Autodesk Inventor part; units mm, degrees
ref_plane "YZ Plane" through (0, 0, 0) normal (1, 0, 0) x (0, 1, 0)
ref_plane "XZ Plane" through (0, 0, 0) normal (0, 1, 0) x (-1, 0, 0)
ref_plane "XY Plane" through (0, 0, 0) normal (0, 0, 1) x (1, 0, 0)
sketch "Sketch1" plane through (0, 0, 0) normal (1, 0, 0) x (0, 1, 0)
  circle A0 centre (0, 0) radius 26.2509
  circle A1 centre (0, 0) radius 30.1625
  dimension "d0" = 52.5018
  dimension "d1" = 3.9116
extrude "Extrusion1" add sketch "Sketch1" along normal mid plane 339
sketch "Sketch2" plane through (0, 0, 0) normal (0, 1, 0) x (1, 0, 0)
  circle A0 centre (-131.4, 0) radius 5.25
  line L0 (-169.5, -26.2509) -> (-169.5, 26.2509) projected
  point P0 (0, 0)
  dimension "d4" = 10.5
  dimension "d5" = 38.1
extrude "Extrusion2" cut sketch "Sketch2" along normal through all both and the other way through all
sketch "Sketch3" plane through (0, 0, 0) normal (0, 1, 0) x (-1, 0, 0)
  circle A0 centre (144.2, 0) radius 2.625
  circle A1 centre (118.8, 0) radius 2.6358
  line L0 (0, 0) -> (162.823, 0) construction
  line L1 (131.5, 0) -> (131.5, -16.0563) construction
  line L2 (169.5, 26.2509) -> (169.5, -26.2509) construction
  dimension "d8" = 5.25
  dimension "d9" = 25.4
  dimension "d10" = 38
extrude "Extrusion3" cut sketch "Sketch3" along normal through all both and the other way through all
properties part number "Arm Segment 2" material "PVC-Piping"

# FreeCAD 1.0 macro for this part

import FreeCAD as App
import Part
import Sketcher

V = App.Vector

doc = App.newDocument("Part")
params = doc.addObject("Spreadsheet::Sheet", "Params")
for row, (alias, value) in enumerate([
    ("pad1_length", "339 mm"),
    ("sketch2_diameter", "10.5 mm"),
    ("sketch3_diameter", "5.25 mm"),
], start=1):
    params.set(f"A{row}", alias)
    params.set(f"B{row}", "=" + value)
    params.setAlias(f"B{row}", alias)

body = doc.addObject("PartDesign::Body", "Body")

sketch1 = body.newObject("Sketcher::SketchObject", "Sketch")
sketch1.AttachmentSupport = (doc.getObject("YZ_Plane"), [""])
sketch1.MapMode = "FlatFace"
sketch1.addGeometry(Part.Circle(V(0, 0, 0), V(0, 0, 1), 30), False)
sketch1.addGeometry(Part.Circle(V(0, 0, 0), V(0, 0, 1), 26), False)
sketch1.addConstraint(Sketcher.Constraint("Coincident", 0, 3, -1, 1))
sketch1.addConstraint(Sketcher.Constraint("Coincident", 1, 3, -1, 1))
sketch1.addConstraint(Sketcher.Constraint("Diameter", 1, 52.5018))
sketch1.addConstraint(Sketcher.Constraint("Diameter", 0, 60.325))
pad1 = body.newObject("PartDesign::Pad", "Pad")
pad1.Profile = sketch1
pad1.setExpression("Length", "Params.pad1_length")
pad1.Midplane = True

sketch2 = body.newObject("Sketcher::SketchObject", "Sketch001")
sketch2.AttachmentSupport = (doc.getObject("XZ_Plane"), [""])
sketch2.MapMode = "FlatFace"
sketch2.addGeometry(Part.Circle(V(-131, 0, 0), V(0, 0, 1), 5), False)
sketch2.addConstraint(Sketcher.Constraint("PointOnObject", 0, 3, -1))
sketch2.addConstraint(Sketcher.Constraint("Diameter", 0, 10.5))
sketch2.addConstraint(Sketcher.Constraint("DistanceX", 0, 3, -1, 1, 131.4))
sketch2.setExpression("Constraints[1]", "Params.sketch2_diameter")
pocket1 = body.newObject("PartDesign::Pocket", "Pocket")
pocket1.Profile = sketch2
pocket1.Type = "ThroughAll"
pocket1.Midplane = True

sketch3 = body.newObject("Sketcher::SketchObject", "Sketch002")
sketch3.AttachmentSupport = (doc.getObject("XZ_Plane"), [""])
sketch3.MapMode = "FlatFace"
sketch3.addGeometry(Part.Circle(V(-144.2, 0, 0), V(0, 0, 1), 2.6), False)
sketch3.addGeometry(Part.Circle(V(-118.8, 0, 0), V(0, 0, 1), 2.6), False)
sketch3.addConstraint(Sketcher.Constraint("PointOnObject", 0, 3, -1))
sketch3.addConstraint(Sketcher.Constraint("PointOnObject", 1, 3, -1))
sketch3.addConstraint(Sketcher.Constraint("Diameter", 0, 5.25))
sketch3.addConstraint(Sketcher.Constraint("DistanceX", 0, 3, 1, 3, 25.4))
sketch3.addConstraint(Sketcher.Constraint("Diameter", 1, 5.2716))
sketch3.addConstraint(Sketcher.Constraint("DistanceX", 0, 3, -1, 1, 144.2))
sketch3.setExpression("Constraints[2]", "Params.sketch3_diameter")
pocket2 = body.newObject("PartDesign::Pocket", "Pocket001")
pocket2.Profile = sketch3
pocket2.Type = "ThroughAll"
pocket2.Midplane = True

doc.recompute()
